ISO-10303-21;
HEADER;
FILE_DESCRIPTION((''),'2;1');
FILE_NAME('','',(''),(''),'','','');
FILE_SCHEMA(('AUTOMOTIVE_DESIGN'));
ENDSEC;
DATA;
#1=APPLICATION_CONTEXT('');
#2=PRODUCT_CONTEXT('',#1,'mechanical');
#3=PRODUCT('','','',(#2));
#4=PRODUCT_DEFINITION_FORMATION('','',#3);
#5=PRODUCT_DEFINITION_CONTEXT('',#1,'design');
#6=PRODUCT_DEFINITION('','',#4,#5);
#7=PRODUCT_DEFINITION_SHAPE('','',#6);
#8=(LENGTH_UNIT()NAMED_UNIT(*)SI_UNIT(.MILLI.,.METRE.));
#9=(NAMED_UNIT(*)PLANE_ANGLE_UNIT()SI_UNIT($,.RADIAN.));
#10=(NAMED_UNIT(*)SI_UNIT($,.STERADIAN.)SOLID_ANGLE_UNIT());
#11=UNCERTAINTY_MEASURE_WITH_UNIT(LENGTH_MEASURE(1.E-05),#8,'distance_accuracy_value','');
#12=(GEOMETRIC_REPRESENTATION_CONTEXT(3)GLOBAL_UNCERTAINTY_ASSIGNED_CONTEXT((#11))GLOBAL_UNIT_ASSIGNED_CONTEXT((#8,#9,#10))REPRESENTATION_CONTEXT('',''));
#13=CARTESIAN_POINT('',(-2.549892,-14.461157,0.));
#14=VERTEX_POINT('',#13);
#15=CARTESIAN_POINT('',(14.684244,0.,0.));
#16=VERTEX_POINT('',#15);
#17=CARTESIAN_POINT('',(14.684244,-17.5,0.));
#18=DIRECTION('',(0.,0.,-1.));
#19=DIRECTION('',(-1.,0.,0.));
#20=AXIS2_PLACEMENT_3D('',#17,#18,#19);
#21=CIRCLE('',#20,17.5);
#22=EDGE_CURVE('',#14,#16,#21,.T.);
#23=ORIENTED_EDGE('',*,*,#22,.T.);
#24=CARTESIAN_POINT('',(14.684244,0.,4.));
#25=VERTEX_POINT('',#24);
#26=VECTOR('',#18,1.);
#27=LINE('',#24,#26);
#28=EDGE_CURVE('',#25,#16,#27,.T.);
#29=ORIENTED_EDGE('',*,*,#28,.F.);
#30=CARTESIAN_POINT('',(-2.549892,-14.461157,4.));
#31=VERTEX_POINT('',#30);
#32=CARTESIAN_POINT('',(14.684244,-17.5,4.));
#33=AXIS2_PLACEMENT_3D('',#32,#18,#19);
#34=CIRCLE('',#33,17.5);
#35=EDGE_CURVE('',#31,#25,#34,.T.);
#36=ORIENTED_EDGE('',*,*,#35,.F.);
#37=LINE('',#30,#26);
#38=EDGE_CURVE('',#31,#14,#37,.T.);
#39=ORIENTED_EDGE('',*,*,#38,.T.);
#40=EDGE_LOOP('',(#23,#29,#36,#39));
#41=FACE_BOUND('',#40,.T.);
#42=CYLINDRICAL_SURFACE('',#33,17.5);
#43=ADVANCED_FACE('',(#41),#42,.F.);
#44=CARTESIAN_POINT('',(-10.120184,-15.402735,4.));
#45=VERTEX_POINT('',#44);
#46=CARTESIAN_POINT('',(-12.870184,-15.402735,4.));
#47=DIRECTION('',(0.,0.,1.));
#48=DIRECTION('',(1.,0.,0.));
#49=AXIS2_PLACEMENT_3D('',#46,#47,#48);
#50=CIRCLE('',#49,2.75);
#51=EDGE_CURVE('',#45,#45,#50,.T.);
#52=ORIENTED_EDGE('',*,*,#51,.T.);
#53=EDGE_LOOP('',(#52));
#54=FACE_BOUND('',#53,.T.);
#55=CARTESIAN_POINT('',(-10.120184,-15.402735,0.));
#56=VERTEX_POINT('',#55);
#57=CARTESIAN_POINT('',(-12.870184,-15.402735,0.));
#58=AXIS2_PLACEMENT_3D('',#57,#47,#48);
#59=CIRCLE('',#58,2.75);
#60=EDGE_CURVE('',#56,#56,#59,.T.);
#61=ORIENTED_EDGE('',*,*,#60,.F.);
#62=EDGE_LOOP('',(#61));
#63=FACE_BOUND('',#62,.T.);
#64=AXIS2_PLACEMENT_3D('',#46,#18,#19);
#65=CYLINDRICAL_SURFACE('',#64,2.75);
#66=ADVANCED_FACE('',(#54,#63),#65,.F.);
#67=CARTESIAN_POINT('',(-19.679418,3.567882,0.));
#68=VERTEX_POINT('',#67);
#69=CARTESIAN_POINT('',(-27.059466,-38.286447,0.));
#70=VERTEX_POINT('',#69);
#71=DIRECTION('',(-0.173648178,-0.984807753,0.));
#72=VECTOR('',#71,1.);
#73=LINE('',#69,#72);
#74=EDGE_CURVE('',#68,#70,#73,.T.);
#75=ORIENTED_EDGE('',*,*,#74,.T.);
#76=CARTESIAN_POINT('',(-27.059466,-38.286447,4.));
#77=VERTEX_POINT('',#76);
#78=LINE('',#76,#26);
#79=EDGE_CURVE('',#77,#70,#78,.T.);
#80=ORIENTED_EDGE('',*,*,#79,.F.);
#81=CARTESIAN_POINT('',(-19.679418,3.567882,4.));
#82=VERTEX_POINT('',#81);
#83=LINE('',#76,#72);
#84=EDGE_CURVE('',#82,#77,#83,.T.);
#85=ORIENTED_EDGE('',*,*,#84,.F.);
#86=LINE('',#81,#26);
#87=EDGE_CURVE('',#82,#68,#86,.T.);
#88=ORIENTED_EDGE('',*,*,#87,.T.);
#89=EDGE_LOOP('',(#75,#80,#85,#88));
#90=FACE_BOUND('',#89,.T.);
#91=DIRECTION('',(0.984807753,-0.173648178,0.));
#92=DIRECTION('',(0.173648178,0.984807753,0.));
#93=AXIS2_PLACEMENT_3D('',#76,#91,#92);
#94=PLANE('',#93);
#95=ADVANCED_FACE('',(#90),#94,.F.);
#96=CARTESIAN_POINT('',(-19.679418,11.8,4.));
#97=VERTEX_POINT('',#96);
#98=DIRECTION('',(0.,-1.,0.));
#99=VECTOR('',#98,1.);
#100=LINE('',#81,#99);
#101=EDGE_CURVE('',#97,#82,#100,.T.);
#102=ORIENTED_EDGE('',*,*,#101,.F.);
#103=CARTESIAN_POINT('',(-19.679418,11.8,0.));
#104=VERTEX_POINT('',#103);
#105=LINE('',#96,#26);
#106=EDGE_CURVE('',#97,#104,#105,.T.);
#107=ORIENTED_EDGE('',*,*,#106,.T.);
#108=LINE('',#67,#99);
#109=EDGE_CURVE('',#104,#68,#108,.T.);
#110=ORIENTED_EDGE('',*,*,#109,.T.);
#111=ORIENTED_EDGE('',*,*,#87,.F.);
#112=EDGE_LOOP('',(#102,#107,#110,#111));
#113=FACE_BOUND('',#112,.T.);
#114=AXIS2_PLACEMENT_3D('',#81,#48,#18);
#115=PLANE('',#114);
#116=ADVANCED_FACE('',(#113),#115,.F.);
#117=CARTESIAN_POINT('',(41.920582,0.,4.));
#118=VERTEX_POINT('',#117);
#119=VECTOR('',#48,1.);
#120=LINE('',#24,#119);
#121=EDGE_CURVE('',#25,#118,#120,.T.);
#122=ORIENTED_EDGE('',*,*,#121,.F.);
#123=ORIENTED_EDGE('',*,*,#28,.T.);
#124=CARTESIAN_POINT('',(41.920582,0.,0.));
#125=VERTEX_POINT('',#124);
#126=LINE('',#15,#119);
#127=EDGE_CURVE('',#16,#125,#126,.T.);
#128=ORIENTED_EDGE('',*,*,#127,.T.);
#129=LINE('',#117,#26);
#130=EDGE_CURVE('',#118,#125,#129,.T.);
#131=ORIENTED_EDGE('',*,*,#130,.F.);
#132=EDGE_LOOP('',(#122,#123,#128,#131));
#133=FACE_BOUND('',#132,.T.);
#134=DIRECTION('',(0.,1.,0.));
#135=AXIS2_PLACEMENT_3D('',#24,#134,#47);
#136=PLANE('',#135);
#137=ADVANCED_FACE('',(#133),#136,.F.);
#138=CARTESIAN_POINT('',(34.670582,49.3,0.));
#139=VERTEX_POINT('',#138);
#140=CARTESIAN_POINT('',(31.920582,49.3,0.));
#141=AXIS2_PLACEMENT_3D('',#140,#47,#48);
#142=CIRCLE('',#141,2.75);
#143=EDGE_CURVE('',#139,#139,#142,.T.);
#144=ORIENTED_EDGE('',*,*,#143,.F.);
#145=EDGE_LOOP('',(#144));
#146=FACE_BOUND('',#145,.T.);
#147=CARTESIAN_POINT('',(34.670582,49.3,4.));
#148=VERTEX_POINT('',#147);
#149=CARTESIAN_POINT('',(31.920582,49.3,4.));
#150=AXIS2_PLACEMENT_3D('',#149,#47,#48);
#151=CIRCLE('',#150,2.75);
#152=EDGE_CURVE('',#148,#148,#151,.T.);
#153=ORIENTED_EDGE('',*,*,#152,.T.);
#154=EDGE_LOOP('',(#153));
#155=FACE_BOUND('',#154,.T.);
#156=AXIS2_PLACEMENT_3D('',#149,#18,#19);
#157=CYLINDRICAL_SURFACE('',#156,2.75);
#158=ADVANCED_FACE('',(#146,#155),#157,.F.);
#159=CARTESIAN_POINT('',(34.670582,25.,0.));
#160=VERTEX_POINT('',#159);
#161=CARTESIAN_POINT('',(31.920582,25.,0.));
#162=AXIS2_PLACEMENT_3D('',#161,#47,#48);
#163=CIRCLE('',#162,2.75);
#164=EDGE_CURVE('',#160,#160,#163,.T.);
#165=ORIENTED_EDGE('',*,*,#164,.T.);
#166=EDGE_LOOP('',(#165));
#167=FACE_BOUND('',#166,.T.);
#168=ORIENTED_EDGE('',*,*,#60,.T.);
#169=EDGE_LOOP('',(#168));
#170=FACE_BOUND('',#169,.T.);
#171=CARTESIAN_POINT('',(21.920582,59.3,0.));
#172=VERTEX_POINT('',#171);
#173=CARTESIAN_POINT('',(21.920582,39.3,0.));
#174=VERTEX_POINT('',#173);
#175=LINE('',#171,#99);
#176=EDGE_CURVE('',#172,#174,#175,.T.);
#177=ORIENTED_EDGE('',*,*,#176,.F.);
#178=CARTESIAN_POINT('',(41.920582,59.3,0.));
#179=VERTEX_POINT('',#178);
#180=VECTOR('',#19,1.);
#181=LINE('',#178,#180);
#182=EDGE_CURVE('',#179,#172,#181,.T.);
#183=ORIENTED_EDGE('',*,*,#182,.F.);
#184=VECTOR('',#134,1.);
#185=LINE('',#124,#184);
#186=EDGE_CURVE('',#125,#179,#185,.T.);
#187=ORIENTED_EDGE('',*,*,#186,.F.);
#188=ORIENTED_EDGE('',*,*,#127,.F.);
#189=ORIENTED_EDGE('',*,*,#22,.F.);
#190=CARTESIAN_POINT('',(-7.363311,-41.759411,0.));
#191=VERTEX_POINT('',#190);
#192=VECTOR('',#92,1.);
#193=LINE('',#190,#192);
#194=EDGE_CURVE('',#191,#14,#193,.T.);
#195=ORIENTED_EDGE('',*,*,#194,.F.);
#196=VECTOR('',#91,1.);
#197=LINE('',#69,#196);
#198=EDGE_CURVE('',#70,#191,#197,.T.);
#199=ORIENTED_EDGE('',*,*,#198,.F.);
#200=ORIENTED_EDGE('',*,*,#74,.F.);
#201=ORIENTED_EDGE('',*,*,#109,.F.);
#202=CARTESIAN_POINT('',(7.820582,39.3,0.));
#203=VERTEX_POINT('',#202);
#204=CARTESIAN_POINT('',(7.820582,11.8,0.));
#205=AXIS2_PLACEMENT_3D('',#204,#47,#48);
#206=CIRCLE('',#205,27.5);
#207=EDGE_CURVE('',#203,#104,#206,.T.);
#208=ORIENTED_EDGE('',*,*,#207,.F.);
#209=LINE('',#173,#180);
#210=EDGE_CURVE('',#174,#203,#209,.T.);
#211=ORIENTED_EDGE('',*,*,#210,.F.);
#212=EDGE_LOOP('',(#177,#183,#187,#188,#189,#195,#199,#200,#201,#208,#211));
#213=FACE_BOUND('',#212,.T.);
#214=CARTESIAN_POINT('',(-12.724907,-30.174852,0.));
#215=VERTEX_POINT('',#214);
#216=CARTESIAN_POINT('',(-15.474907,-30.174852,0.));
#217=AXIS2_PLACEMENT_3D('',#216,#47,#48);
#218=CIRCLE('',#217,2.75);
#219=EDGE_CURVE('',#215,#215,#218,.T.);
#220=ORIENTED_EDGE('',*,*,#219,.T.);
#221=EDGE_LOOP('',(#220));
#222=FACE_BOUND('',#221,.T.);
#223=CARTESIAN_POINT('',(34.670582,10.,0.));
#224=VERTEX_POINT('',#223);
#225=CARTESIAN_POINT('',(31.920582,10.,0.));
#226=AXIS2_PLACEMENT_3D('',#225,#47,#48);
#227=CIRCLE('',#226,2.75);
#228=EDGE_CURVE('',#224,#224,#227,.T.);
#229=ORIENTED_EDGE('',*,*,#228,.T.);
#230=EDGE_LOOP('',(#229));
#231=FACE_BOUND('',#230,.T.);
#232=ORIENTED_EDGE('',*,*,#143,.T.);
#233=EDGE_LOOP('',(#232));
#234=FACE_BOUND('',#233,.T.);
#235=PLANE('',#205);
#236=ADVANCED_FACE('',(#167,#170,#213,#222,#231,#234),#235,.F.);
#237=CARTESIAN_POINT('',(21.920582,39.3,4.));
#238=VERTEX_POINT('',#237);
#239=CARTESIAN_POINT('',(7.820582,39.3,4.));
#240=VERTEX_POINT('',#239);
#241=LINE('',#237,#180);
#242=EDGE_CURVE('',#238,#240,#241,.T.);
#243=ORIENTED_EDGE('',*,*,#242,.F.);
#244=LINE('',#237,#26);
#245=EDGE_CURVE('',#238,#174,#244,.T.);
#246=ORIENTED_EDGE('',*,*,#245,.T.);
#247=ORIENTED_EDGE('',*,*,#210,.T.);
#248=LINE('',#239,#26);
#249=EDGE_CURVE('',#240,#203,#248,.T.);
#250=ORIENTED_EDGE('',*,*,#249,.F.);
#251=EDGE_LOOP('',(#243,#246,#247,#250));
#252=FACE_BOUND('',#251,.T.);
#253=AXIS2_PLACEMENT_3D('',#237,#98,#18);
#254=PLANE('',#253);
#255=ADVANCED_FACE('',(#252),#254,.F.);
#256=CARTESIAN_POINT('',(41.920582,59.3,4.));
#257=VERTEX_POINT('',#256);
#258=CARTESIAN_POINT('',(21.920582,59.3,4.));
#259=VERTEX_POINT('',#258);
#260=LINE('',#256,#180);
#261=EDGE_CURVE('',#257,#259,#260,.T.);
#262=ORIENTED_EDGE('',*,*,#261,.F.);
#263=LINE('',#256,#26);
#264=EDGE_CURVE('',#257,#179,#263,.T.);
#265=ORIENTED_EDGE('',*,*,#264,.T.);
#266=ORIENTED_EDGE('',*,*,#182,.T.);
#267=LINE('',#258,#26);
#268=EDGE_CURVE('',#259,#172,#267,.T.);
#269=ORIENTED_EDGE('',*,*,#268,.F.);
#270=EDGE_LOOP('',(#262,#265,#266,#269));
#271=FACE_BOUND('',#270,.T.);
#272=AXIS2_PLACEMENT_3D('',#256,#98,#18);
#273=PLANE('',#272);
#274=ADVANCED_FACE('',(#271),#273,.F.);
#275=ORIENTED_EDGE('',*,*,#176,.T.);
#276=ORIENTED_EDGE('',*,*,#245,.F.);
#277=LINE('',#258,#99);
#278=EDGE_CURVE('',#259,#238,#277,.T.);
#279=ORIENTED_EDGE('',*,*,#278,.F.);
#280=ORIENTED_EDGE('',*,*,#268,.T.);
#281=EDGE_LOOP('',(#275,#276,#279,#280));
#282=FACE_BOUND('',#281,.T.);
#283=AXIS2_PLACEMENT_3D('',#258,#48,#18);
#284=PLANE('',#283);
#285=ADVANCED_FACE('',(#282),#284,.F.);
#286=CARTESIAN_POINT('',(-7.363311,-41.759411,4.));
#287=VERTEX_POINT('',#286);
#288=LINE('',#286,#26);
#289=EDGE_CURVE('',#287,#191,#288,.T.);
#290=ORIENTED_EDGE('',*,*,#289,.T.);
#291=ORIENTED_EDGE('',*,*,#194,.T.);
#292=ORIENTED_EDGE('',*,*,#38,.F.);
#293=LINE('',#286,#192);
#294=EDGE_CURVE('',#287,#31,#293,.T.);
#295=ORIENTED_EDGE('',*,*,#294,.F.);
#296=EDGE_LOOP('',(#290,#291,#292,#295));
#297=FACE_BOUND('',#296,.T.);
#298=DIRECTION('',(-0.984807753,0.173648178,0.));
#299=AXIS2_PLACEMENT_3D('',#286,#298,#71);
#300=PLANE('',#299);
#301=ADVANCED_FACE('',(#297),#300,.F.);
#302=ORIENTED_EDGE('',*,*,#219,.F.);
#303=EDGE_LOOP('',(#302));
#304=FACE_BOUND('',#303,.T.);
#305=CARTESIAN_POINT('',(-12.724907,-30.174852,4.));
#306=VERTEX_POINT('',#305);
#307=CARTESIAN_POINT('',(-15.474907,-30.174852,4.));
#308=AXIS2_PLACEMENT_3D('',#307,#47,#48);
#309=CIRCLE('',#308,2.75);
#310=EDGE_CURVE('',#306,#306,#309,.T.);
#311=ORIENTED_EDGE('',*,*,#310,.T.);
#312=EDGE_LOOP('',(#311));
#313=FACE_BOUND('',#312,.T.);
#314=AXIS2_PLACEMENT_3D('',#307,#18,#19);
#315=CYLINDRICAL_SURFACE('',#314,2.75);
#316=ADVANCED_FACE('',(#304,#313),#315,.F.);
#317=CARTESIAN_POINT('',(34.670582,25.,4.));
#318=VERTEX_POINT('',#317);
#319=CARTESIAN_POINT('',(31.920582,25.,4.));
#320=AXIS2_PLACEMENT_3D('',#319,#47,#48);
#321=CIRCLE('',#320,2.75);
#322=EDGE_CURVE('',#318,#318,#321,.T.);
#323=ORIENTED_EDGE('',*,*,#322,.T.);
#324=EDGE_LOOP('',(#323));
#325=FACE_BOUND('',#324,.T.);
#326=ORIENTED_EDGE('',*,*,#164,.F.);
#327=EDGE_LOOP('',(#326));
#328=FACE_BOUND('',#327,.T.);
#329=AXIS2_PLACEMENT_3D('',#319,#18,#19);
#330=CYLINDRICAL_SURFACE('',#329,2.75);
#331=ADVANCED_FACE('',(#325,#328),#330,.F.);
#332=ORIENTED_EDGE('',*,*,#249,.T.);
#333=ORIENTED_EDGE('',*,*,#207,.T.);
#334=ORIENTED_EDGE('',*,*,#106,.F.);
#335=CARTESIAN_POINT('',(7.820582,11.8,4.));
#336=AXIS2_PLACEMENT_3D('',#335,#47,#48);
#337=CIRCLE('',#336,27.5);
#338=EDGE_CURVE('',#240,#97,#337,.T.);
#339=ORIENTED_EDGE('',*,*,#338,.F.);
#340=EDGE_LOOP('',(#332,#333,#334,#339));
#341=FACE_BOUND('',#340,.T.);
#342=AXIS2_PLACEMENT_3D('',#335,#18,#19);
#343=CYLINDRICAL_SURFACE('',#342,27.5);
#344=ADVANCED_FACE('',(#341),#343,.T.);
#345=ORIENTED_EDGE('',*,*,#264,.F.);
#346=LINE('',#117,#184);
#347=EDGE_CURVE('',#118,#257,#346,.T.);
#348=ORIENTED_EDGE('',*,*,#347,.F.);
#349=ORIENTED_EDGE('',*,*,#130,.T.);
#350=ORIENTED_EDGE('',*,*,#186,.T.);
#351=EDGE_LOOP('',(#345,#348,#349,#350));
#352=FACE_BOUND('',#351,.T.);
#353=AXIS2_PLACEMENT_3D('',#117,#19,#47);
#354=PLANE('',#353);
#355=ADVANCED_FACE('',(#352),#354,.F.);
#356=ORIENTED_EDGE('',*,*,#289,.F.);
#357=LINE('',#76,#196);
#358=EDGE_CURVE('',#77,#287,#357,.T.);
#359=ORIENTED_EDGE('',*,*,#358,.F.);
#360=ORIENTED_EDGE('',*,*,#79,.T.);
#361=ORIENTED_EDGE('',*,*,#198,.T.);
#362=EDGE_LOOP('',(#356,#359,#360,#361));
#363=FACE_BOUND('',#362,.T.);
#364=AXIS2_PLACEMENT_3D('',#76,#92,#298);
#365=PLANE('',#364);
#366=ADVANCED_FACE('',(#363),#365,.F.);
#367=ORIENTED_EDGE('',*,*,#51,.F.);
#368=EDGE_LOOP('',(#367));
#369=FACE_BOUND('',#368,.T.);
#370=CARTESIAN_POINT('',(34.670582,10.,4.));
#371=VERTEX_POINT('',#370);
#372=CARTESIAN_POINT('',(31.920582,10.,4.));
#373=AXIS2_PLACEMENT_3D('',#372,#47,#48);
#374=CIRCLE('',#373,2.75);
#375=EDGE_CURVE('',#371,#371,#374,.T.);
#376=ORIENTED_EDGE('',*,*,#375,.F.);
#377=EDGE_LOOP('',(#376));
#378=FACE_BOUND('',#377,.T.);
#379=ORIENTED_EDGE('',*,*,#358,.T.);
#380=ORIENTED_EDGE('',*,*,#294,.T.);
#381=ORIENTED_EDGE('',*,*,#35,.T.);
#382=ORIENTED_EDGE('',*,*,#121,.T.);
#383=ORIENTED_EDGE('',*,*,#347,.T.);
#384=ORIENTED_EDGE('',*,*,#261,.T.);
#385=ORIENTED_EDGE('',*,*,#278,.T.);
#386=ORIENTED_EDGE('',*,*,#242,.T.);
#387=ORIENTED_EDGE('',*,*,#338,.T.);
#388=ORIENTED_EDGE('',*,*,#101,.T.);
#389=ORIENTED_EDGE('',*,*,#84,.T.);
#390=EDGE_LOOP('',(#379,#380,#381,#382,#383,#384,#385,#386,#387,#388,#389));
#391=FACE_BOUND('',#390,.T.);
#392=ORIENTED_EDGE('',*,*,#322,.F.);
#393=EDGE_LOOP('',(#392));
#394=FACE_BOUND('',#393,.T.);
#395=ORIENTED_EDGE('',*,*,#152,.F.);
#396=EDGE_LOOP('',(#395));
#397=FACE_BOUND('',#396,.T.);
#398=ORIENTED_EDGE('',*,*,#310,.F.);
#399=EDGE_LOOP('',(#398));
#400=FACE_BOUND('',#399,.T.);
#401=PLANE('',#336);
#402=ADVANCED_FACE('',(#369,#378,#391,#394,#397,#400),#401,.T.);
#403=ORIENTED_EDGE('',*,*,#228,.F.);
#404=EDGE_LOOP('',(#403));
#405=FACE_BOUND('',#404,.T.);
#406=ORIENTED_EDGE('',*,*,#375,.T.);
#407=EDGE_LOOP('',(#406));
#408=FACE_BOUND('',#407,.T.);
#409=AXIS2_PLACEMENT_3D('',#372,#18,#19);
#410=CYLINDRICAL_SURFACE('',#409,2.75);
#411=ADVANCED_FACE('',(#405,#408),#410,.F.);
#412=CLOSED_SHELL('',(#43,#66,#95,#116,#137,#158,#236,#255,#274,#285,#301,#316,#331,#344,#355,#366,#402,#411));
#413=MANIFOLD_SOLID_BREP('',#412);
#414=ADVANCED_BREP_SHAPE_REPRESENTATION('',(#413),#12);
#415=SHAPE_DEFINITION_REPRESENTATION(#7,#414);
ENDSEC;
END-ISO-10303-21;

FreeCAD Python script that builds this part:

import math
import FreeCAD as App
import Part
import Sketcher

V = App.Vector
Q = App.Units.Quantity

doc = App.newDocument("Part")
body = doc.addObject("PartDesign::Body", "Body")

sketch1 = body.newObject("Sketcher::SketchObject", "Sketch")
sketch1.AttachmentSupport = (doc.getObject("XY_Plane"), [""])
sketch1.MapMode = "FlatFace"
sketch1.addGeometry(Part.LineSegment(V(14.7, 0, 0), V(41.9, 0, 0)), False)
sketch1.addGeometry(Part.LineSegment(V(41.9, 0, 0), V(41.9, 59.3, 0)), False)
sketch1.addGeometry(Part.LineSegment(V(41.9, 59.3, 0), V(21.9, 59.3, 0)), False)
sketch1.addGeometry(Part.LineSegment(V(21.9, 59.3, 0), V(21.9, 39.3, 0)), False)
sketch1.addGeometry(Part.LineSegment(V(21.9, 39.3, 0), V(7.8, 39.3, 0)), False)
sketch1.addGeometry(Part.ArcOfCircle(Part.Circle(V(7.8, 11.8, 0), V(0, 0, 1), 27.5), math.radians(90), math.radians(180)), False)
sketch1.addGeometry(Part.LineSegment(V(-19.7, 11.8, 0), V(-19.7, 3.6, 0)), False)
sketch1.addGeometry(Part.LineSegment(V(-19.7, 3.6, 0), V(-27.1, -38.3, 0)), False)
sketch1.addGeometry(Part.LineSegment(V(-27.1, -38.3, 0), V(-7.4, -41.8, 0)), False)
sketch1.addGeometry(Part.LineSegment(V(-7.4, -41.8, 0), V(-2.5, -14.5, 0)), False)
sketch1.addGeometry(Part.ArcOfCircle(Part.Circle(V(14.7, -17.5, 0), V(0, 0, 1), 17.5), math.radians(90), math.radians(170)), False)
sketch1.addGeometry(Part.Circle(V(-15.5, -30.2, 0), V(0, 0, 1), 2.8), False)
sketch1.addGeometry(Part.Circle(V(-12.9, -15.4, 0), V(0, 0, 1), 2.8), False)
sketch1.addGeometry(Part.Circle(V(31.9, 10, 0), V(0, 0, 1), 2.8), False)
sketch1.addGeometry(Part.Circle(V(31.9, 25, 0), V(0, 0, 1), 2.8), False)
sketch1.addGeometry(Part.Circle(V(31.9, 49.3, 0), V(0, 0, 1), 2.8), False)
sketch1.addConstraint(Sketcher.Constraint("Coincident", 0, 2, 1, 1))
sketch1.addConstraint(Sketcher.Constraint("Coincident", 1, 2, 2, 1))
sketch1.addConstraint(Sketcher.Constraint("Coincident", 2, 2, 3, 1))
sketch1.addConstraint(Sketcher.Constraint("Coincident", 3, 2, 4, 1))
sketch1.addConstraint(Sketcher.Constraint("Tangent", 4, 2, 5, 1))
sketch1.addConstraint(Sketcher.Constraint("Tangent", 5, 2, 6, 1))
sketch1.addConstraint(Sketcher.Constraint("Coincident", 6, 2, 7, 1))
sketch1.addConstraint(Sketcher.Constraint("Coincident", 7, 2, 8, 1))
sketch1.addConstraint(Sketcher.Constraint("Coincident", 8, 2, 9, 1))
sketch1.addConstraint(Sketcher.Constraint("Tangent", 9, 2, 10, 2))
sketch1.addConstraint(Sketcher.Constraint("Tangent", 10, 1, 0, 1))
sketch1.addConstraint(Sketcher.Constraint("Horizontal", 0))
sketch1.addConstraint(Sketcher.Constraint("Vertical", 1))
sketch1.addConstraint(Sketcher.Constraint("Horizontal", 2))
sketch1.addConstraint(Sketcher.Constraint("Vertical", 3))
sketch1.addConstraint(Sketcher.Constraint("Horizontal", 4))
sketch1.addConstraint(Sketcher.Constraint("Vertical", 6))
sketch1.addConstraint(Sketcher.Constraint("Equal", 11, 12))
sketch1.addConstraint(Sketcher.Constraint("Equal", 12, 13))
sketch1.addConstraint(Sketcher.Constraint("Equal", 13, 14))
sketch1.addConstraint(Sketcher.Constraint("Equal", 14, 15))
sketch1.addConstraint(Sketcher.Constraint("PointOnObject", 0, 2, -1))
sketch1.addConstraint(Sketcher.Constraint("Perpendicular", 7, 8))
sketch1.addConstraint(Sketcher.Constraint("Perpendicular", 8, 9))
sketch1.addConstraint(Sketcher.Constraint("Vertical", 13, 3, 14, 3))
sketch1.addConstraint(Sketcher.Constraint("Vertical", 14, 3, 15, 3))
sketch1.addConstraint(Sketcher.Constraint("Equal", 2, 3))
sketch1.addConstraint(Sketcher.Constraint("Diameter", 11, 5.5))
sketch1.addConstraint(Sketcher.Constraint("Radius", 5, 27.5))
sketch1.addConstraint(Sketcher.Constraint("Radius", 10, 17.5))
sketch1.addConstraint(Sketcher.Constraint("DistanceX", 2, 2, 2, 1, 20.0))
sketch1.addConstraint(Sketcher.Constraint("Angle", 7, Q("-100 deg")))
sketch1.addConstraint(Sketcher.Constraint("Distance", 8, 20.0))
sketch1.addConstraint(Sketcher.Constraint("DistanceX", 4, 2, 4, 1, 14.1))
sketch1.addConstraint(Sketcher.Constraint("DistanceY", 1, 1, 1, 2, 59.3))
sketch1.addConstraint(Sketcher.Constraint("DistanceY", -1, 1, 13, 3, 10.0))
sketch1.addConstraint(Sketcher.Constraint("DistanceY", -1, 1, 14, 3, 25.0))
sketch1.addConstraint(Sketcher.Constraint("DistanceX", 13, 3, 0, 2, 10.0))
sketch1.addConstraint(Sketcher.Constraint("DistanceY", 15, 3, 1, 2, 10.0))
sketch1.addConstraint(Sketcher.Constraint("Distance", 7, 42.5))
sketch1.addConstraint(Sketcher.Constraint("DistanceX", 0, 1, 0, 2, 27.236338))
sketch1.addConstraint(Sketcher.Constraint("DistanceX", -1, 1, 5, 3, 7.820582))
sketch1.addConstraint(Sketcher.Constraint("DistanceY", 11, 3, -1, 1, 30.174852))
sketch1.addConstraint(Sketcher.Constraint("DistanceX", 11, 3, 10, 3, 30.15915))
sketch1.addConstraint(Sketcher.Constraint("DistanceX", 7, 2, 12, 3, 14.189282))
sketch1.addConstraint(Sketcher.Constraint("DistanceY", 12, 3, 9, 2, 0.941578))
pad1 = body.newObject("PartDesign::Pad", "Pad")
pad1.Profile = sketch1
pad1.Length = 4

doc.recompute()
